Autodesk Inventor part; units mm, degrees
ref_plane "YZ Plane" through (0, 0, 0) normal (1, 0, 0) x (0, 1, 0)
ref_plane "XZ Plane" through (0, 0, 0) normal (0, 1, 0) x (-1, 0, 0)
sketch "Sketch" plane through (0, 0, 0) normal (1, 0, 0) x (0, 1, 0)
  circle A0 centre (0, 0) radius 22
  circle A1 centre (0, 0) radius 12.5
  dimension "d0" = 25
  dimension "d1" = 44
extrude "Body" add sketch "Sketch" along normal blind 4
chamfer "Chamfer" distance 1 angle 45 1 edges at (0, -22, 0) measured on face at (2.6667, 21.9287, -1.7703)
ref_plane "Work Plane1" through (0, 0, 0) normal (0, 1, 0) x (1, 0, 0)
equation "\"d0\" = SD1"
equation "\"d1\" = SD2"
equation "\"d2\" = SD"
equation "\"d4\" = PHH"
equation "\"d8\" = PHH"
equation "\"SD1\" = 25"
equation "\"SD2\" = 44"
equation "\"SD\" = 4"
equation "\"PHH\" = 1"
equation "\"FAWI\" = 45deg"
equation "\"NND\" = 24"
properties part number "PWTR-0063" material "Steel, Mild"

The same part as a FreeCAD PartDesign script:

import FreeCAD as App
import Part
import Sketcher

V = App.Vector


def edges_at(feature, points):
    """Names of the edges that pass closest to the given points."""
    edges = feature.Shape.Edges
    near = lambda p: min(range(len(edges)), key=lambda i: edges[i].distToShape(Part.Vertex(*p))[0])
    return sorted({f"Edge{near(p) + 1}" for p in points})

doc = App.newDocument("Part")
params = doc.addObject("Spreadsheet::Sheet", "Params")
for row, (alias, value) in enumerate([
    ("sketch1_diameter", "44 mm"),
    ("sketch1_diameter2", "25 mm"),
    ("pad1_length", "4 mm"),
    ("chamfer_size", "1 mm"),
], start=1):
    params.set(f"A{row}", alias)
    params.set(f"B{row}", "=" + value)
    params.setAlias(f"B{row}", alias)

body = doc.addObject("PartDesign::Body", "Body")

# Sketch on YZ plane
sketch1 = body.newObject("Sketcher::SketchObject", "Sketch")
sketch1.AttachmentSupport = (doc.getObject("YZ_Plane"), [""])
sketch1.MapMode = "FlatFace"
sketch1.addGeometry(Part.Circle(V(0, 0, 0), V(0, 0, 1), 22), False)
sketch1.addGeometry(Part.Circle(V(0, 0, 0), V(0, 0, 1), 12.5), False)
sketch1.addConstraint(Sketcher.Constraint("Coincident", 0, 3, -1, 1))
sketch1.addConstraint(Sketcher.Constraint("Coincident", 1, 3, -1, 1))
sketch1.addConstraint(Sketcher.Constraint("Diameter", 0, 44.0))
sketch1.addConstraint(Sketcher.Constraint("Diameter", 1, 25.0))
sketch1.setExpression("Constraints[2]", "Params.sketch1_diameter")
sketch1.setExpression("Constraints[3]", "Params.sketch1_diameter2")
pad1 = body.newObject("PartDesign::Pad", "Pad")
pad1.Profile = sketch1
pad1.setExpression("Length", "Params.pad1_length")
doc.recompute()

chamfer = body.newObject("PartDesign::Chamfer", "Chamfer")
chamfer.Base = (pad1, edges_at(pad1, [(0, -22, 0)]))
chamfer.setExpression("Size", "Params.chamfer_size")

doc.recompute()
